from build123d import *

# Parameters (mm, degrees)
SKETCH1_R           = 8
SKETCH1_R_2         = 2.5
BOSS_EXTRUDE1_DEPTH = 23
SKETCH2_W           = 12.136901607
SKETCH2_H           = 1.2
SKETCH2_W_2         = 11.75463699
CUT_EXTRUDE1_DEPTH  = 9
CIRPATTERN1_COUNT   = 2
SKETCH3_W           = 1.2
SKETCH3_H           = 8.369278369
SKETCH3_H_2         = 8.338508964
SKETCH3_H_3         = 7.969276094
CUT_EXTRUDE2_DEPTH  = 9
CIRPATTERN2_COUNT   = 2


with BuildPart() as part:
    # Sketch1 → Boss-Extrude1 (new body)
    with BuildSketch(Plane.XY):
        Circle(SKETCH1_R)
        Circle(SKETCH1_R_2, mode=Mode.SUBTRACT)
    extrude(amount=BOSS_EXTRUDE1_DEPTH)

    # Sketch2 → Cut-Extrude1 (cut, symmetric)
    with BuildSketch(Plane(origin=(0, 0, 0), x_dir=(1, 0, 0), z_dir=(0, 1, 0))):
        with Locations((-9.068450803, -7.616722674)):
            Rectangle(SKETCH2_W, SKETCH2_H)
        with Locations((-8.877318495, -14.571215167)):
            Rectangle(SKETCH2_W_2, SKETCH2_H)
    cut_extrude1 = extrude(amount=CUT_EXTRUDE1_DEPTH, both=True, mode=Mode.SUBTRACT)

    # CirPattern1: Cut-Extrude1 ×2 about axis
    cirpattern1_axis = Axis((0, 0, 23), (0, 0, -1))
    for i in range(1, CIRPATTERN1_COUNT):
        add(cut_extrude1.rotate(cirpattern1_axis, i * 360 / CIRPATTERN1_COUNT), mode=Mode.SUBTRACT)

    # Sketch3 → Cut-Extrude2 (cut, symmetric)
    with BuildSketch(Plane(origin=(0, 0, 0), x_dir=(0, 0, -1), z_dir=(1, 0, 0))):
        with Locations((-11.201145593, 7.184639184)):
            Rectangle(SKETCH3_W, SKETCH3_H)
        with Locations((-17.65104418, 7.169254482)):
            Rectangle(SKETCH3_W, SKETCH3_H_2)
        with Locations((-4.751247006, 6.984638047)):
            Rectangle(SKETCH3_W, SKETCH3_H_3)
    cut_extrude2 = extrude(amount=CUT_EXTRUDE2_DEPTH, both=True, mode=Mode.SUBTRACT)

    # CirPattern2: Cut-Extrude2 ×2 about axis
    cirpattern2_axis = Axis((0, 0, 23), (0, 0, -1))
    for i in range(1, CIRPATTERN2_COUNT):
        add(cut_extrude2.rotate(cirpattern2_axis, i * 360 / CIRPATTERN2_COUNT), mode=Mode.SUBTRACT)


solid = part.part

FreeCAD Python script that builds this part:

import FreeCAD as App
import Part
import Sketcher


def add_polygon(sketch, points):
    """Adds a closed chain of lines whose ends are joined by coincident constraints."""
    first, n = sketch.GeometryCount, len(points)
    for a, b in zip(points, points[1:] + points[:1]):
        sketch.addGeometry(Part.LineSegment(App.Vector(*a, 0), App.Vector(*b, 0)), False)
    for i in range(n):
        sketch.addConstraint(Sketcher.Constraint("Coincident", first + i, 2, first + (i + 1) % n, 1))

doc = App.newDocument("Part")
body = doc.addObject("PartDesign::Body", "Body")

sketch1 = body.newObject("Sketcher::SketchObject", "Sketch")
sketch1.AttachmentSupport = (doc.getObject("XY_Plane"), [""])
sketch1.MapMode = "FlatFace"
sketch1.addGeometry([
    Part.Circle(App.Vector(0, 0, 0), App.Vector(0, 0, 1), 8),
    Part.Circle(App.Vector(0, 0, 0), App.Vector(0, 0, 1), 2.5),
], False)
sketch1.addConstraint([
    Sketcher.Constraint("Coincident", 0, 3, -1, 1),
    Sketcher.Constraint("Coincident", 1, 3, -1, 1),
    Sketcher.Constraint("Diameter", 0, 16.0),
    Sketcher.Constraint("Diameter", 1, 5.0),
])
pad1 = body.newObject("PartDesign::Pad", "Pad")
pad1.Profile = sketch1
pad1.Length = 23

sketch2 = body.newObject("Sketcher::SketchObject", "Sketch001")
sketch2.AttachmentSupport = (doc.getObject("XZ_Plane"), [""])
sketch2.MapMode = "FlatFace"
add_polygon(sketch2, [(-15.136902, 7.016723), (-15.136902, 8.216723), (-3, 8.216723), (-3, 7.016723)])
add_polygon(sketch2, [(-14.754637, 13.971215), (-14.754637, 15.171215), (-3, 15.171215), (-3, 13.971215)])
sketch2.addConstraint([
    Sketcher.Constraint("Vertical", 0),
    Sketcher.Constraint("Horizontal", 1),
    Sketcher.Constraint("Vertical", 2),
    Sketcher.Constraint("Horizontal", 3),
    Sketcher.Constraint("Vertical", 4),
    Sketcher.Constraint("Horizontal", 5),
    Sketcher.Constraint("Vertical", 6),
    Sketcher.Constraint("Horizontal", 7),
    Sketcher.Constraint("Vertical", 2, 2, 5, 2),
    Sketcher.Constraint("Equal", 2, 4),
    Sketcher.Constraint("DistanceY", 0, 1, 0, 2, 1.2),
    Sketcher.Constraint("DistanceX", 1, 2, -1, 1, 3.0),
    Sketcher.Constraint("DistanceX", 1, 1, 1, 2, 12.136902),
    Sketcher.Constraint("DistanceX", 5, 1, 5, 2, 11.754637),
    Sketcher.Constraint("DistanceY", -1, 1, 0, 2, 8.216723),
    Sketcher.Constraint("DistanceY", -1, 1, 4, 2, 15.171215),
])
pocket1 = body.newObject("PartDesign::Pocket", "Pocket")
pocket1.Profile = sketch2
pocket1.Length = 18
pocket1.Midplane = True
doc.recompute()

polarpattern = body.newObject("PartDesign::PolarPattern", "PolarPattern")
polarpattern.Originals = [pocket1]
polarpattern.Axis = (doc.getObject("Z_Axis"), [""])
polarpattern.Angle = 360
polarpattern.Occurrences = 2
body.Tip = polarpattern

sketch3 = body.newObject("Sketcher::SketchObject", "Sketch002")
sketch3.AttachmentSupport = (doc.getObject("YZ_Plane"), [""])
sketch3.MapMode = "FlatFace"
add_polygon(sketch3, [(11.369278, 11.801146), (3, 11.801146), (3, 10.601146), (11.369278, 10.601146)])
add_polygon(sketch3, [(11.338509, 18.251044), (3, 18.251044), (3, 17.051044), (11.338509, 17.051044)])
add_polygon(sketch3, [(10.969276, 5.351247), (3, 5.351247), (3, 4.151247), (10.969276, 4.151247)])
sketch3.addConstraint([
    Sketcher.Constraint("Horizontal", 0),
    Sketcher.Constraint("Vertical", 1),
    Sketcher.Constraint("Horizontal", 2),
    Sketcher.Constraint("Vertical", 3),
    Sketcher.Constraint("Horizontal", 4),
    Sketcher.Constraint("Vertical", 5),
    Sketcher.Constraint("Horizontal", 6),
    Sketcher.Constraint("Vertical", 7),
    Sketcher.Constraint("Horizontal", 8),
    Sketcher.Constraint("Vertical", 9),
    Sketcher.Constraint("Horizontal", 10),
    Sketcher.Constraint("Vertical", 11),
    Sketcher.Constraint("Vertical", 1, 2, 4, 2),
    Sketcher.Constraint("Vertical", 5, 2, 8, 2),
    Sketcher.Constraint("Equal", 3, 5),
    Sketcher.Constraint("Equal", 7, 9),
    Sketcher.Constraint("DistanceY", 1, 2, 1, 1, 1.2),
    Sketcher.Constraint("DistanceX", -1, 1, 0, 2, 3.0),
    Sketcher.Constraint("DistanceX", 0, 2, 0, 1, 8.369278),
    Sketcher.Constraint("DistanceX", 4, 2, 4, 1, 8.338509),
    Sketcher.Constraint("DistanceY", 0, 2, 4, 2, 6.449899),
    Sketcher.Constraint("DistanceY", 8, 2, 1, 2, 5.249899),
    Sketcher.Constraint("DistanceX", 8, 2, 8, 1, 7.969276),
    Sketcher.Constraint("DistanceY", -1, 1, 0, 2, 11.801146),
])
pocket2 = body.newObject("PartDesign::Pocket", "Pocket001")
pocket2.Profile = sketch3
pocket2.Length = 18
pocket2.Midplane = True
doc.recompute()

polarpattern2 = body.newObject("PartDesign::PolarPattern", "PolarPattern001")
polarpattern2.Originals = [pocket2]
polarpattern2.Axis = (doc.getObject("Z_Axis"), [""])
polarpattern2.Angle = 360
polarpattern2.Occurrences = 2
body.Tip = polarpattern2

doc.recompute()
